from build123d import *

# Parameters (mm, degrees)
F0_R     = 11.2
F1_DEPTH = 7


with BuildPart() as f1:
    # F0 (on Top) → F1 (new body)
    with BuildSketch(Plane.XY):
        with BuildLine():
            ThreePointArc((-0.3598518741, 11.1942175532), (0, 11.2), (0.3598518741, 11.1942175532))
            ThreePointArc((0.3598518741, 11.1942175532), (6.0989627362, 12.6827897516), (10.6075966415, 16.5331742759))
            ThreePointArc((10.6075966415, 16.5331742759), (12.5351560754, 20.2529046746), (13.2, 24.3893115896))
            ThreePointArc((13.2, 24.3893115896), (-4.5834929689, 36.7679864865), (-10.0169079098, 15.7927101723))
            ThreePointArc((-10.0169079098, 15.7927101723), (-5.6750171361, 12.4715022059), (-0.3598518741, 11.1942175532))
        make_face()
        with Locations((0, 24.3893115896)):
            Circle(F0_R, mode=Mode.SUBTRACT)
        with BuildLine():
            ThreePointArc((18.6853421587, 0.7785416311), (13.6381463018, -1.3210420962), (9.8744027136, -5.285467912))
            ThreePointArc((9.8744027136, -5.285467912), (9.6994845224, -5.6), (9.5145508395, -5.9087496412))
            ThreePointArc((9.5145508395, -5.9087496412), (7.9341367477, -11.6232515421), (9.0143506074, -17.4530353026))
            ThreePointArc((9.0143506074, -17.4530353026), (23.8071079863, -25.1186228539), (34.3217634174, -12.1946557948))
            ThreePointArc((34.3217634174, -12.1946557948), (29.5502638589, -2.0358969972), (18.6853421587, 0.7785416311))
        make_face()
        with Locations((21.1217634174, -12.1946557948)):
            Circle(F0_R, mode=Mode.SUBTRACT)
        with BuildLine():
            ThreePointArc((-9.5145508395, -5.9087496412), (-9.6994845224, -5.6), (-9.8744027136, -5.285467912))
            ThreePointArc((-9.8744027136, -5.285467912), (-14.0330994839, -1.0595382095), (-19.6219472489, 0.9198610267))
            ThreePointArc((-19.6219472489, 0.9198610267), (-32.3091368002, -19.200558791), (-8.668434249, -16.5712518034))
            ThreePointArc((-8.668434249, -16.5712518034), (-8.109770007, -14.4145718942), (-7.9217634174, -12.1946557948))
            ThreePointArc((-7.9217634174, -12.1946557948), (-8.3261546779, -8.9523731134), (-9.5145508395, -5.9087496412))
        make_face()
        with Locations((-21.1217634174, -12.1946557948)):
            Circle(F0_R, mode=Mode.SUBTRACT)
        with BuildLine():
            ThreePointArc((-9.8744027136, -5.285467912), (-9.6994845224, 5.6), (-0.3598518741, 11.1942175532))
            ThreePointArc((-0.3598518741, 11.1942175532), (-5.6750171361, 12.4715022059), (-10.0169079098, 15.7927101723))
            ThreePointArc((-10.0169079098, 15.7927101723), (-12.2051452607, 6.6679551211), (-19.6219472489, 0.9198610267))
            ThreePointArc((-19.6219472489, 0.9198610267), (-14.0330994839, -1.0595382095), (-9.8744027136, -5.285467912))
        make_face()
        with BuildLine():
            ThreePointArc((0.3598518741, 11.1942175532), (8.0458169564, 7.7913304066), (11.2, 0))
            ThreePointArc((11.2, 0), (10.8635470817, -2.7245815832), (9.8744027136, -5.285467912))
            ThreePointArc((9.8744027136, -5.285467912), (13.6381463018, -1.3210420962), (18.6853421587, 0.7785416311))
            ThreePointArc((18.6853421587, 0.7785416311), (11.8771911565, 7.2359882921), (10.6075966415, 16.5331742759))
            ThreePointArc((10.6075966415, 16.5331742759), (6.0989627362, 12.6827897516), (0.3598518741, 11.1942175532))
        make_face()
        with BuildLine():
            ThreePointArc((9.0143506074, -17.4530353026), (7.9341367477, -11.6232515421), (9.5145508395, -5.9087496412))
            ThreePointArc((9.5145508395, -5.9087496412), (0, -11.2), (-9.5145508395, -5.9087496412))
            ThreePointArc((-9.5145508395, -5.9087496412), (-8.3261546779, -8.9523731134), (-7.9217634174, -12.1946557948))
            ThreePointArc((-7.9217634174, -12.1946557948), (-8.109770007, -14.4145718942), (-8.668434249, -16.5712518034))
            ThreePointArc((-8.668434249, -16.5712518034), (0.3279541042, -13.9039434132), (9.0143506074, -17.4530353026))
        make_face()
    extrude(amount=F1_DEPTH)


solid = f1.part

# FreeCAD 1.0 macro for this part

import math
import FreeCAD as App
import Part
import Sketcher

V = App.Vector
Q = App.Units.Quantity

doc = App.newDocument("Part")
body = doc.addObject("PartDesign::Body", "Body")

sketch1 = body.newObject("Sketcher::SketchObject", "Sketch")
sketch1.AttachmentSupport = (doc.getObject("XY_Plane"), [""])
sketch1.MapMode = "FlatFace"
sketch1.addGeometry([
    Part.ArcOfCircle(Part.Circle(V(21.1, -12.2, 0), V(0, 0, 1), 13.2), math.radians(-157), math.radians(0)),
    Part.ArcOfCircle(Part.Circle(V(21.1, -12.2, 0), V(0, 0, 1), 13.2), math.radians(0), math.radians(101)),
    Part.ArcOfCircle(Part.Circle(V(24.5, 13.7, 0), V(0, 0, 1), 14.1), math.radians(168), math.radians(246)),
    Part.ArcOfCircle(Part.Circle(V(0, 24.4, 0), V(0, 0, 1), 13.2), math.radians(-37), math.radians(0)),
    Part.ArcOfCircle(Part.Circle(V(0, 24.4, 0), V(0, 0, 1), 13.2), math.radians(0), math.radians(221)),
    Part.ArcOfCircle(Part.Circle(V(-24.1, 14.3, 0), V(0, 0, 1), 14.1), math.radians(-72), math.radians(6)),
    Part.ArcOfCircle(Part.Circle(V(-21.1, -12.2, 0), V(0, 0, 1), 13.2), math.radians(83), math.radians(341)),
    Part.ArcOfCircle(Part.Circle(V(-0.4, -28, 0), V(0, 0, 1), 14.1), math.radians(48), math.radians(126)),
    Part.ArcOfCircle(Part.Circle(V(0, 0, 0), V(0, 0, 1), 11.2), math.radians(88.16), math.radians(91.84)),
    Part.ArcOfCircle(Part.Circle(V(0, 0, 0), V(0, 0, 1), 11.2), math.radians(0), math.radians(88)),
    Part.ArcOfCircle(Part.Circle(V(0, 0, 0), V(0, 0, 1), 11.2), math.radians(-28), math.radians(0)),
    Part.ArcOfCircle(Part.Circle(V(0, 0, 0), V(0, 0, 1), 11.2), math.radians(-31.84), math.radians(-28.16)),
    Part.ArcOfCircle(Part.Circle(V(0, 0, 0), V(0, 0, 1), 11.2), math.radians(-148), math.radians(-32)),
    Part.ArcOfCircle(Part.Circle(V(0, 0, 0), V(0, 0, 1), 11.2), math.radians(-151.84), math.radians(-148.16)),
    Part.ArcOfCircle(Part.Circle(V(0, 0, 0), V(0, 0, 1), 11.2), math.radians(92), math.radians(208)),
    Part.Circle(V(0, 24.4, 0), V(0, 0, 1), 11.2),
    Part.Circle(V(-21.1, -12.2, 0), V(0, 0, 1), 11.2),
    Part.Circle(V(21.1, -12.2, 0), V(0, 0, 1), 11.2),
], False)
sketch1.addConstraint([
    Sketcher.Constraint("Tangent", 0, 2, 1, 1),
    Sketcher.Constraint("Coincident", 1, 2, 2, 2),
    Sketcher.Constraint("Coincident", 2, 1, 3, 1),
    Sketcher.Constraint("Tangent", 3, 2, 4, 1),
    Sketcher.Constraint("Coincident", 4, 2, 5, 2),
    Sketcher.Constraint("Coincident", 5, 1, 6, 1),
    Sketcher.Constraint("Coincident", 6, 2, 7, 2),
    Sketcher.Constraint("Coincident", 7, 1, 0, 1),
    Sketcher.Constraint("Tangent", 8, 1, 9, 2),
    Sketcher.Constraint("Tangent", 9, 1, 10, 2),
    Sketcher.Constraint("Tangent", 10, 1, 11, 2),
    Sketcher.Constraint("Tangent", 11, 1, 12, 2),
    Sketcher.Constraint("Tangent", 12, 1, 13, 2),
    Sketcher.Constraint("Tangent", 13, 1, 14, 2),
    Sketcher.Constraint("Tangent", 14, 1, 8, 2),
    Sketcher.Constraint("Coincident", 8, 3, -1, 1),
    Sketcher.Constraint("Coincident", 10, 3, -1, 1),
    Sketcher.Constraint("Coincident", 12, 3, -1, 1),
    Sketcher.Constraint("Coincident", 15, 3, 3, 3),
    Sketcher.Constraint("Coincident", 16, 3, 6, 3),
    Sketcher.Constraint("Coincident", 17, 3, 0, 3),
    Sketcher.Constraint("Equal", 0, 1),
    Sketcher.Constraint("Equal", 1, 3),
    Sketcher.Constraint("Equal", 3, 4),
    Sketcher.Constraint("Equal", 2, 5),
    Sketcher.Constraint("Equal", 4, 6),
    Sketcher.Constraint("Equal", 5, 7),
    Sketcher.Constraint("Equal", 14, 15),
    Sketcher.Constraint("Equal", 15, 16),
    Sketcher.Constraint("Equal", 16, 17),
    Sketcher.Constraint("Symmetric", 0, 3, 6, 3, -2),
    Sketcher.Constraint("PointOnObject", 3, 3, -2),
    Sketcher.Constraint("PointOnObject", 9, 1, -1),
    Sketcher.Constraint("Horizontal", 17, 3, 0, 2),
    Sketcher.Constraint("Horizontal", 15, 3, 3, 2),
    Sketcher.Constraint("Horizontal", 11, 1, 12, 1),
    Sketcher.Constraint("Horizontal", 10, 1, 13, 1),
    Sketcher.Constraint("Horizontal", 8, 1, 14, 1),
    Sketcher.Constraint("Diameter", 15, Q("22.4 mm")),
    Sketcher.Constraint("Radius", 0, Q("13.2 mm")),
    Sketcher.Constraint("Radius", 2, Q("14.146493 mm")),
    Sketcher.Constraint("DistanceY", 4, 2, 4, 3, Q("8.596601 mm")),
    Sketcher.Constraint("DistanceX", -1, 1, 2, 3, Q("24.465492 mm")),
    Sketcher.Constraint("DistanceY", -1, 1, 3, 3, Q("24.389312 mm")),
    Sketcher.Constraint("DistanceX", 5, 3, -1, 1, Q("24.088881 mm")),
    Sketcher.Constraint("DistanceX", 7, 3, -1, 1, Q("0.37661 mm")),
    Sketcher.Constraint("DistanceY", 7, 3, -1, 1, Q("28.03288 mm")),
    Sketcher.Constraint("DistanceY", -1, 1, 1, 2, Q("0.778542 mm")),
    Sketcher.Constraint("DistanceY", -1, 1, 5, 1, Q("0.919861 mm")),
    Sketcher.Constraint("DistanceY", 6, 2, -1, 1, Q("16.571252 mm")),
    Sketcher.Constraint("DistanceX", -1, 1, 8, 1, Q("0.359852 mm")),
    Sketcher.Constraint("DistanceX", -1, 1, 11, 1, Q("9.514551 mm")),
    Sketcher.Constraint("DistanceX", 10, 1, 1, 2, Q("8.810939 mm")),
])
pad1 = body.newObject("PartDesign::Pad", "Pad")
pad1.Profile = sketch1
pad1.Length = 7

doc.recompute()
